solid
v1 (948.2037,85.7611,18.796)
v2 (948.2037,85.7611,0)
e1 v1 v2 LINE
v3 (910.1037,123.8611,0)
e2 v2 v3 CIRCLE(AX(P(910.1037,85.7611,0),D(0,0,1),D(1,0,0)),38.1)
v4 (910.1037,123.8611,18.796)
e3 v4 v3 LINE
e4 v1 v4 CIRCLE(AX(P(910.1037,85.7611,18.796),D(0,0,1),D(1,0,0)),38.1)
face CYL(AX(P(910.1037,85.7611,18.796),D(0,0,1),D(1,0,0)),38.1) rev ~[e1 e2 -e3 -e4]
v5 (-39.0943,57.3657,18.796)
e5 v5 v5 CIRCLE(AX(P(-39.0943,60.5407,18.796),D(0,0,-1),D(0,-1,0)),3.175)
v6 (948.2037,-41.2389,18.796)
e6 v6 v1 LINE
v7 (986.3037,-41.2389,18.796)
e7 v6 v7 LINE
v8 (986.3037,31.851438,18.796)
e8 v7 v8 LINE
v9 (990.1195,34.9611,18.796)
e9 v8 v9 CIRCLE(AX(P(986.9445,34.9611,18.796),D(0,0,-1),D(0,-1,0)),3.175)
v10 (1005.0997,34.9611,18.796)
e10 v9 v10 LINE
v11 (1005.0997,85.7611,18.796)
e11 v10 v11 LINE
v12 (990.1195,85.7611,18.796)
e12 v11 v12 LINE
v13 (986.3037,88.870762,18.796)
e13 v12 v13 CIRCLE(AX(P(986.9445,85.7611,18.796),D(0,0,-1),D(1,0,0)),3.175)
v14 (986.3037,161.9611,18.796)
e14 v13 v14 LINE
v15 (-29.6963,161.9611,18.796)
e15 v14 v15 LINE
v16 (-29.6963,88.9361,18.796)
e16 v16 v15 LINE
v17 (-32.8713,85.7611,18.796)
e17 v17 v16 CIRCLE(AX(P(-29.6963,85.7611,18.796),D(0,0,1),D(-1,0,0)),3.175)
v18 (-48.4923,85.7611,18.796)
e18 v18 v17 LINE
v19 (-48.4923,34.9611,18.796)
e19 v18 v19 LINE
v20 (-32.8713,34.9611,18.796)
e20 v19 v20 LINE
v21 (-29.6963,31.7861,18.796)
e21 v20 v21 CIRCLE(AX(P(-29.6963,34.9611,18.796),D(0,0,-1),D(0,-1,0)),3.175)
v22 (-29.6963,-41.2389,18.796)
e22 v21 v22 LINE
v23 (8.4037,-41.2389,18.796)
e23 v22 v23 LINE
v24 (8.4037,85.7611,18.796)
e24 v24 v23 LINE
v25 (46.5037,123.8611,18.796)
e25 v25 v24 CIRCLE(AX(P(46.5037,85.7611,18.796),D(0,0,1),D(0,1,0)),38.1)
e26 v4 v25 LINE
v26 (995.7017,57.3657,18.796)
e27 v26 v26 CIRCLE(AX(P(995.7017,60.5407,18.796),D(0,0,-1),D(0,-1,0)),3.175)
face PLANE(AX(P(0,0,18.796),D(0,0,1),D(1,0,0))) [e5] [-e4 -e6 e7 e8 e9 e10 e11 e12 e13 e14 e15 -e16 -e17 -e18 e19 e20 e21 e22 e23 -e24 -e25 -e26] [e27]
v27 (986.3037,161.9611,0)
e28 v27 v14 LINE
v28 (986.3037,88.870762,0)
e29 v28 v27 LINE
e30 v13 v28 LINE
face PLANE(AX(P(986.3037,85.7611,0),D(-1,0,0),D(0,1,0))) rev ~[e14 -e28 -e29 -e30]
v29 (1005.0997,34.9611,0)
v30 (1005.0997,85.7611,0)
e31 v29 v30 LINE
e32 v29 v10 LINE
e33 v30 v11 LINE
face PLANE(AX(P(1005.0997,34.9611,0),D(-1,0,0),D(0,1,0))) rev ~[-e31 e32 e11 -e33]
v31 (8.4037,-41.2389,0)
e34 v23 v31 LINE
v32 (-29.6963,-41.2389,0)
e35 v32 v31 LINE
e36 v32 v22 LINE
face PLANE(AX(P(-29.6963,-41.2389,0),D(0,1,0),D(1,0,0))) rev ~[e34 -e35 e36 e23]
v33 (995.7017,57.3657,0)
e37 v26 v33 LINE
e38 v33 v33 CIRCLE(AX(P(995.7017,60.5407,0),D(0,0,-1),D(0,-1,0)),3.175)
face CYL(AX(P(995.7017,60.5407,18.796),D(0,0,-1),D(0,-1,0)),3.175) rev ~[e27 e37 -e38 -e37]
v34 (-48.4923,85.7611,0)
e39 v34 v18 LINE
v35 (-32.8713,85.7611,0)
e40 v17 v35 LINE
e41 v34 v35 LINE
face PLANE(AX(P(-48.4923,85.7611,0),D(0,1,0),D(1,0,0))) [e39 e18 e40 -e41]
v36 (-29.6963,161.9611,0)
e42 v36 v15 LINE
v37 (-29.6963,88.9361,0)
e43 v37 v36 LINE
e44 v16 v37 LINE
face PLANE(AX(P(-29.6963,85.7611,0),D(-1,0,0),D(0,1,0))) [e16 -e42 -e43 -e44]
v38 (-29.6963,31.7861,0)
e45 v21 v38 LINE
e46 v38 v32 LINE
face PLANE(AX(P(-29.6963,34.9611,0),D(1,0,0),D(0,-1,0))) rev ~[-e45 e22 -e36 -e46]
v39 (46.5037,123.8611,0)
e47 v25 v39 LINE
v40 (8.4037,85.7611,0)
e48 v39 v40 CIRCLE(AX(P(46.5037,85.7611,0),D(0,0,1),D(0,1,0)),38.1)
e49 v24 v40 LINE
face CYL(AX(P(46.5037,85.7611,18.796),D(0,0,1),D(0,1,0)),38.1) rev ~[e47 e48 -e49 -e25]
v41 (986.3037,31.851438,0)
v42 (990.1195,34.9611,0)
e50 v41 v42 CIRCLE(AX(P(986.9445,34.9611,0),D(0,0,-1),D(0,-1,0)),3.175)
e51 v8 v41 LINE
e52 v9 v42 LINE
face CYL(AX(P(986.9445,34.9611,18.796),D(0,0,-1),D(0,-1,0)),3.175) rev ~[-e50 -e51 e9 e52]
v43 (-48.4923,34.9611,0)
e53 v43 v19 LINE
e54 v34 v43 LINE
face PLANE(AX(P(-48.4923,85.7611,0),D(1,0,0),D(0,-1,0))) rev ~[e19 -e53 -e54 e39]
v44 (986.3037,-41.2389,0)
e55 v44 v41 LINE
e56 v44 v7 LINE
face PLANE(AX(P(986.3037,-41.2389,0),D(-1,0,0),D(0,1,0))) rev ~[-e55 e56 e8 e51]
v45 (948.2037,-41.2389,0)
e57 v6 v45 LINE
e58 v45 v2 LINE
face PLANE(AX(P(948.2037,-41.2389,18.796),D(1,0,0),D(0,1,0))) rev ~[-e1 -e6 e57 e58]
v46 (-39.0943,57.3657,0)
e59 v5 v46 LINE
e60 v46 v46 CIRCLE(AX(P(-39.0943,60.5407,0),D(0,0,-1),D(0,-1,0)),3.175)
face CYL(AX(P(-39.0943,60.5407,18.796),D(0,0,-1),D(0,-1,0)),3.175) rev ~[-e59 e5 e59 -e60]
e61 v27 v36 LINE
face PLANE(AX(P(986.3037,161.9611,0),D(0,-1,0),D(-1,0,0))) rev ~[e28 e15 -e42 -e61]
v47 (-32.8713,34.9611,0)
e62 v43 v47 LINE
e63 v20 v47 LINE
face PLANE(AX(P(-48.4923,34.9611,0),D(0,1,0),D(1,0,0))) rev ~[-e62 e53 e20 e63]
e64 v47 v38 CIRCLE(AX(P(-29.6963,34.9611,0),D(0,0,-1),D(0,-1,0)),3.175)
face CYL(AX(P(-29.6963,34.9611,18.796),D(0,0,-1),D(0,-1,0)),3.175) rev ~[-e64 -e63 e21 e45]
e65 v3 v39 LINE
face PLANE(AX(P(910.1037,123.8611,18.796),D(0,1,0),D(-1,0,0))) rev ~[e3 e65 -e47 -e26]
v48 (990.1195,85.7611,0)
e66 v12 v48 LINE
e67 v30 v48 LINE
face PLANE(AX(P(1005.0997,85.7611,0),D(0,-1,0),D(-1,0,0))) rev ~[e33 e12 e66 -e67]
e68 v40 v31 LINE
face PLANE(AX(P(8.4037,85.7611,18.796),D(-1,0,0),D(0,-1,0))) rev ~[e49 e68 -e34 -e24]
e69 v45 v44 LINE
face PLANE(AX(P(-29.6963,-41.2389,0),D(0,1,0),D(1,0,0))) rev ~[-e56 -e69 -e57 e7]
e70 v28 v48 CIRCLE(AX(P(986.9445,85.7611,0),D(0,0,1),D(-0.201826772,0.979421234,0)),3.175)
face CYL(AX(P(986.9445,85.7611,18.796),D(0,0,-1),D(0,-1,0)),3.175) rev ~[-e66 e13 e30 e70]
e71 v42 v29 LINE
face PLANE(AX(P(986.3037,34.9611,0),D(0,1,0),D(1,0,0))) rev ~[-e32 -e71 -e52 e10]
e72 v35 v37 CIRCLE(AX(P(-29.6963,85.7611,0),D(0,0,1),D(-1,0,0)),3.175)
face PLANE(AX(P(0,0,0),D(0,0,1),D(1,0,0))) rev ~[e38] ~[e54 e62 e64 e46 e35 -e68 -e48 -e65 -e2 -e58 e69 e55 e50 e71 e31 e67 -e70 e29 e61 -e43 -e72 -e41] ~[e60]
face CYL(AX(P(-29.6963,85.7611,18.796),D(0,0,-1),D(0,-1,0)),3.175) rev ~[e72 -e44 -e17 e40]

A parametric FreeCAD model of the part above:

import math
import FreeCAD as App
import Part
import Sketcher

V = App.Vector
Q = App.Units.Quantity


def add_polygon(sketch, points):
    """Adds a closed chain of lines whose ends are joined by coincident constraints."""
    first, n = sketch.GeometryCount, len(points)
    for a, b in zip(points, points[1:] + points[:1]):
        sketch.addGeometry(Part.LineSegment(App.Vector(*a, 0), App.Vector(*b, 0)), False)
    for i in range(n):
        sketch.addConstraint(Sketcher.Constraint("Coincident", first + i, 2, first + (i + 1) % n, 1))

doc = App.newDocument("Part")
body = doc.addObject("PartDesign::Body", "Body")

sketch1 = body.newObject("Sketcher::SketchObject", "Sketch")
sketch1.AttachmentSupport = (doc.getObject("XY_Plane"), [""])
sketch1.MapMode = "FlatFace"
add_polygon(sketch1, [(-30, 86), (-48, 86), (-48, 35), (-30, 35), (-30, -41), (986, -41), (986, 35), (1005, 35), (1005, 86), (986, 86), (986, 162), (-30, 162)])
sketch1.addConstraint(Sketcher.Constraint("Horizontal", 0))
sketch1.addConstraint(Sketcher.Constraint("Vertical", 1))
sketch1.addConstraint(Sketcher.Constraint("Horizontal", 2))
sketch1.addConstraint(Sketcher.Constraint("Vertical", 3))
sketch1.addConstraint(Sketcher.Constraint("Horizontal", 4))
sketch1.addConstraint(Sketcher.Constraint("Vertical", 5))
sketch1.addConstraint(Sketcher.Constraint("Horizontal", 6))
sketch1.addConstraint(Sketcher.Constraint("Vertical", 7))
sketch1.addConstraint(Sketcher.Constraint("Horizontal", 8))
sketch1.addConstraint(Sketcher.Constraint("Vertical", 9))
sketch1.addConstraint(Sketcher.Constraint("Horizontal", 10))
sketch1.addConstraint(Sketcher.Constraint("Vertical", 11))
sketch1.addConstraint(Sketcher.Constraint("Horizontal", 2, 2, 5, 2))
sketch1.addConstraint(Sketcher.Constraint("Horizontal", 0, 2, 7, 2))
sketch1.addConstraint(Sketcher.Constraint("Vertical", 5, 2, 8, 2))
sketch1.addConstraint(Sketcher.Constraint("Vertical", 3, 2, 10, 2))
sketch1.addConstraint(Sketcher.Constraint("Equal", 2, 6))
sketch1.addConstraint(Sketcher.Constraint("Equal", 5, 9))
sketch1.addConstraint(Sketcher.Constraint("DistanceX", 4, 1, 4, 2, Q("40 in")))
sketch1.addConstraint(Sketcher.Constraint("DistanceY", 1, 2, 1, 1, Q("2 in")))
sketch1.addConstraint(Sketcher.Constraint("DistanceY", 3, 2, 3, 1, Q("3 in")))
sketch1.addConstraint(Sketcher.Constraint("DistanceX", 0, 2, 0, 1, Q("0.74 in")))
sketch1.addConstraint(Sketcher.Constraint("DistanceX", 0, 2, -1, 1, Q("48.4923 mm")))
sketch1.addConstraint(Sketcher.Constraint("DistanceY", -1, 1, 0, 2, Q("85.761 mm")))
pad1 = body.newObject("PartDesign::Pad", "Pad")
pad1.Profile = sketch1
pad1.Length = Q("0.74 in")

sketch2 = body.newObject("Sketcher::SketchObject", "Sketch001")
sketch2.AttachmentSupport = (doc.getObject("XY_Plane"), [""])
sketch2.MapMode = "FlatFace"
sketch2.AttachmentOffset = App.Placement(V(0, 0, 0.74 * 25.4), App.Rotation())
sketch2.addGeometry(Part.Circle(V(-29.7, 85.8, 0), V(0, 0, 1), 3.2), False)
sketch2.addGeometry(Part.Circle(V(-29.7, 35, 0), V(0, 0, 1), 3.2), False)
sketch2.addGeometry(Part.Circle(V(-39.1, 60.5, 0), V(0, 0, 1), 3.2), False)
sketch2.addGeometry(Part.Circle(V(986.9, 85.8, 0), V(0, 0, 1), 3.2), False)
sketch2.addGeometry(Part.Circle(V(986.9, 35, 0), V(0, 0, 1), 3.2), False)
sketch2.addGeometry(Part.Circle(V(995.7, 60.5, 0), V(0, 0, 1), 3.2), False)
sketch2.addConstraint(Sketcher.Constraint("Equal", 0, 1))
sketch2.addConstraint(Sketcher.Constraint("Equal", 1, 2))
sketch2.addConstraint(Sketcher.Constraint("Equal", 2, 3))
sketch2.addConstraint(Sketcher.Constraint("Equal", 3, 4))
sketch2.addConstraint(Sketcher.Constraint("Equal", 4, 5))
sketch2.addConstraint(Sketcher.Constraint("Horizontal", 0, 3, 3, 3))
sketch2.addConstraint(Sketcher.Constraint("Horizontal", 1, 3, 4, 3))
sketch2.addConstraint(Sketcher.Constraint("Horizontal", 2, 3, 5, 3))
sketch2.addConstraint(Sketcher.Constraint("Vertical", 0, 3, 1, 3))
sketch2.addConstraint(Sketcher.Constraint("Vertical", 3, 3, 4, 3))
sketch2.addConstraint(Sketcher.Constraint("Diameter", 0, Q("0.25 in")))
sketch2.addConstraint(Sketcher.Constraint("DistanceY", 1, 3, 0, 3, Q("2 in")))
sketch2.addConstraint(Sketcher.Constraint("DistanceX", 2, 3, 0, 3, Q("0.37 in")))
sketch2.addConstraint(Sketcher.Constraint("DistanceX", 0, 3, 5, 3, Q("40.37 in")))
sketch2.addConstraint(Sketcher.Constraint("DistanceY", -1, 1, 2, 3, Q("2.3835 in")))
sketch2.addConstraint(Sketcher.Constraint("DistanceX", 0, 3, -1, 1, Q("29.6963 mm")))
sketch2.addConstraint(Sketcher.Constraint("DistanceY", -1, 1, 0, 3, Q("85.761 mm")))
sketch2.addConstraint(Sketcher.Constraint("DistanceX", -1, 1, 3, 3, Q("986.9445 mm")))
doc.recompute()
hole = body.newObject("PartDesign::Hole", "Hole")
hole.Profile = sketch2
hole.ThreadType = "None"
hole.Diameter = Q("0.25 in")
hole.DepthType = "ThroughAll"

sketch3 = body.newObject("Sketcher::SketchObject", "Sketch002")
sketch3.AttachmentSupport = (doc.getObject("XY_Plane"), [""])
sketch3.MapMode = "FlatFace"
sketch3.AttachmentOffset = App.Placement(V(0, 0, 0.74 * 25.4), App.Rotation())
sketch3.addGeometry(Part.LineSegment(V(8, 86, 0), V(8, -41, 0)), False)
sketch3.addGeometry(Part.LineSegment(V(8, -41, 0), V(948, -41, 0)), False)
sketch3.addGeometry(Part.LineSegment(V(948, -41, 0), V(948, 86, 0)), False)
sketch3.addGeometry(Part.ArcOfCircle(Part.Circle(V(910, 86, 0), V(0, 0, 1), 38), math.radians(0), math.radians(90)), False)
sketch3.addGeometry(Part.LineSegment(V(910, 124, 0), V(47, 124, 0)), False)
sketch3.addGeometry(Part.ArcOfCircle(Part.Circle(V(47, 86, 0), V(0, 0, 1), 38), math.radians(90), math.radians(180)), False)
sketch3.addConstraint(Sketcher.Constraint("Coincident", 0, 2, 1, 1))
sketch3.addConstraint(Sketcher.Constraint("Coincident", 1, 2, 2, 1))
sketch3.addConstraint(Sketcher.Constraint("Tangent", 2, 2, 3, 1))
sketch3.addConstraint(Sketcher.Constraint("Tangent", 3, 2, 4, 1))
sketch3.addConstraint(Sketcher.Constraint("Tangent", 4, 2, 5, 1))
sketch3.addConstraint(Sketcher.Constraint("Tangent", 5, 2, 0, 1))
sketch3.addConstraint(Sketcher.Constraint("Vertical", 0))
sketch3.addConstraint(Sketcher.Constraint("Horizontal", 1))
sketch3.addConstraint(Sketcher.Constraint("Vertical", 2))
sketch3.addConstraint(Sketcher.Constraint("Horizontal", 4))
sketch3.addConstraint(Sketcher.Constraint("Equal", 3, 5))
sketch3.addConstraint(Sketcher.Constraint("Radius", 3, Q("1.5 in")))
sketch3.addConstraint(Sketcher.Constraint("DistanceX", 1, 1, 1, 2, Q("37 in")))
sketch3.addConstraint(Sketcher.Constraint("DistanceY", 1, 2, 3, 2, Q("6.5 in")))
sketch3.addConstraint(Sketcher.Constraint("DistanceX", -1, 1, 3, 3, Q("910.1037 mm")))
sketch3.addConstraint(Sketcher.Constraint("DistanceY", -1, 1, 3, 3, Q("85.761 mm")))
pocket1 = body.newObject("PartDesign::Pocket", "Pocket")
pocket1.Profile = sketch3
pocket1.Length = Q("1 in")

doc.recompute()
